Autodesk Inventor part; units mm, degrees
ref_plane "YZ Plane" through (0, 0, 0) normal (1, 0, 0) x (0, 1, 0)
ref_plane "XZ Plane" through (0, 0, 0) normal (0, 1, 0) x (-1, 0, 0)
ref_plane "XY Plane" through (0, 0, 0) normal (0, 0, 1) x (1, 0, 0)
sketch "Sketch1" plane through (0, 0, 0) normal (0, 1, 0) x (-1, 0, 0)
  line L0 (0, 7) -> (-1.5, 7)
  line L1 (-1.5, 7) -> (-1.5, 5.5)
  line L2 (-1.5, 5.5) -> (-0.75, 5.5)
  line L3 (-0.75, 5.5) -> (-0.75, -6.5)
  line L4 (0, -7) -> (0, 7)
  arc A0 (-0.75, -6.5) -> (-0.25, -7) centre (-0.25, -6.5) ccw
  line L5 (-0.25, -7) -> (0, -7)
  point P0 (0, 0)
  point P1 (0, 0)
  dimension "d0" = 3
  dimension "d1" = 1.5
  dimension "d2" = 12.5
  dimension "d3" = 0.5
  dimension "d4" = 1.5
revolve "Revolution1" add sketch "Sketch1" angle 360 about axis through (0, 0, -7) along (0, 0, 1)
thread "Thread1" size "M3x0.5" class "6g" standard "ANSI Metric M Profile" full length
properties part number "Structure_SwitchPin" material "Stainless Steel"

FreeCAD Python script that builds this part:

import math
import FreeCAD as App
import Part
import Sketcher
from FreeCAD import Vector

doc = App.newDocument("Part")
body = doc.addObject("PartDesign::Body", "Body")

sketch1 = body.newObject("Sketcher::SketchObject", "Sketch")
sketch1.AttachmentSupport = (doc.getObject("XZ_Plane"), [""])
sketch1.MapMode = "FlatFace"
sketch1.addGeometry(Part.LineSegment(Vector(0, -7, 0), Vector(0, 7, 0)), False)
sketch1.addGeometry(Part.LineSegment(Vector(0, 7, 0), Vector(1.5, 7, 0)), False)
sketch1.addGeometry(Part.LineSegment(Vector(1.5, 7, 0), Vector(1.5, 5.5, 0)), False)
sketch1.addGeometry(Part.LineSegment(Vector(1.5, 5.5, 0), Vector(0.75, 5.5, 0)), False)
sketch1.addGeometry(Part.LineSegment(Vector(0.75, 5.5, 0), Vector(0.75, -6.5, 0)), False)
sketch1.addGeometry(Part.ArcOfCircle(Part.Circle(Vector(0.25, -6.5, 0), Vector(0, 0, 1), 0.5), math.radians(-90), math.radians(0)), False)
sketch1.addGeometry(Part.LineSegment(Vector(0.25, -7, 0), Vector(0, -7, 0)), False)
sketch1.addConstraint(Sketcher.Constraint("Coincident", 0, 2, 1, 1))
sketch1.addConstraint(Sketcher.Constraint("Coincident", 1, 2, 2, 1))
sketch1.addConstraint(Sketcher.Constraint("Coincident", 2, 2, 3, 1))
sketch1.addConstraint(Sketcher.Constraint("Coincident", 3, 2, 4, 1))
sketch1.addConstraint(Sketcher.Constraint("Tangent", 4, 2, 5, 2))
sketch1.addConstraint(Sketcher.Constraint("Tangent", 5, 1, 6, 1))
sketch1.addConstraint(Sketcher.Constraint("Coincident", 6, 2, 0, 1))
sketch1.addConstraint(Sketcher.Constraint("Vertical", 0))
sketch1.addConstraint(Sketcher.Constraint("Horizontal", 1))
sketch1.addConstraint(Sketcher.Constraint("Vertical", 2))
sketch1.addConstraint(Sketcher.Constraint("Horizontal", 3))
sketch1.addConstraint(Sketcher.Constraint("Vertical", 4))
sketch1.addConstraint(Sketcher.Constraint("Horizontal", 6))
sketch1.addConstraint(Sketcher.Constraint("Symmetric", 0, 2, 6, 2, -1, 1))
sketch1.addConstraint(Sketcher.Constraint("Equal", 1, 2))
sketch1.addConstraint(Sketcher.Constraint("Radius", 5, 0.5))
sketch1.addConstraint(Sketcher.Constraint("DistanceX", 1, 1, 1, 2, 1.5))
sketch1.addConstraint(Sketcher.Constraint("DistanceY", 5, 1, 3, 2, 12.5))
sketch1.addConstraint(Sketcher.Constraint("DistanceX", 3, 2, 3, 1, 0.75))
revolution = body.newObject("PartDesign::Revolution", "Revolution")
revolution.Profile = sketch1
revolution.ReferenceAxis = (sketch1, ["V_Axis"])
revolution.Angle = 360

doc.recompute()
